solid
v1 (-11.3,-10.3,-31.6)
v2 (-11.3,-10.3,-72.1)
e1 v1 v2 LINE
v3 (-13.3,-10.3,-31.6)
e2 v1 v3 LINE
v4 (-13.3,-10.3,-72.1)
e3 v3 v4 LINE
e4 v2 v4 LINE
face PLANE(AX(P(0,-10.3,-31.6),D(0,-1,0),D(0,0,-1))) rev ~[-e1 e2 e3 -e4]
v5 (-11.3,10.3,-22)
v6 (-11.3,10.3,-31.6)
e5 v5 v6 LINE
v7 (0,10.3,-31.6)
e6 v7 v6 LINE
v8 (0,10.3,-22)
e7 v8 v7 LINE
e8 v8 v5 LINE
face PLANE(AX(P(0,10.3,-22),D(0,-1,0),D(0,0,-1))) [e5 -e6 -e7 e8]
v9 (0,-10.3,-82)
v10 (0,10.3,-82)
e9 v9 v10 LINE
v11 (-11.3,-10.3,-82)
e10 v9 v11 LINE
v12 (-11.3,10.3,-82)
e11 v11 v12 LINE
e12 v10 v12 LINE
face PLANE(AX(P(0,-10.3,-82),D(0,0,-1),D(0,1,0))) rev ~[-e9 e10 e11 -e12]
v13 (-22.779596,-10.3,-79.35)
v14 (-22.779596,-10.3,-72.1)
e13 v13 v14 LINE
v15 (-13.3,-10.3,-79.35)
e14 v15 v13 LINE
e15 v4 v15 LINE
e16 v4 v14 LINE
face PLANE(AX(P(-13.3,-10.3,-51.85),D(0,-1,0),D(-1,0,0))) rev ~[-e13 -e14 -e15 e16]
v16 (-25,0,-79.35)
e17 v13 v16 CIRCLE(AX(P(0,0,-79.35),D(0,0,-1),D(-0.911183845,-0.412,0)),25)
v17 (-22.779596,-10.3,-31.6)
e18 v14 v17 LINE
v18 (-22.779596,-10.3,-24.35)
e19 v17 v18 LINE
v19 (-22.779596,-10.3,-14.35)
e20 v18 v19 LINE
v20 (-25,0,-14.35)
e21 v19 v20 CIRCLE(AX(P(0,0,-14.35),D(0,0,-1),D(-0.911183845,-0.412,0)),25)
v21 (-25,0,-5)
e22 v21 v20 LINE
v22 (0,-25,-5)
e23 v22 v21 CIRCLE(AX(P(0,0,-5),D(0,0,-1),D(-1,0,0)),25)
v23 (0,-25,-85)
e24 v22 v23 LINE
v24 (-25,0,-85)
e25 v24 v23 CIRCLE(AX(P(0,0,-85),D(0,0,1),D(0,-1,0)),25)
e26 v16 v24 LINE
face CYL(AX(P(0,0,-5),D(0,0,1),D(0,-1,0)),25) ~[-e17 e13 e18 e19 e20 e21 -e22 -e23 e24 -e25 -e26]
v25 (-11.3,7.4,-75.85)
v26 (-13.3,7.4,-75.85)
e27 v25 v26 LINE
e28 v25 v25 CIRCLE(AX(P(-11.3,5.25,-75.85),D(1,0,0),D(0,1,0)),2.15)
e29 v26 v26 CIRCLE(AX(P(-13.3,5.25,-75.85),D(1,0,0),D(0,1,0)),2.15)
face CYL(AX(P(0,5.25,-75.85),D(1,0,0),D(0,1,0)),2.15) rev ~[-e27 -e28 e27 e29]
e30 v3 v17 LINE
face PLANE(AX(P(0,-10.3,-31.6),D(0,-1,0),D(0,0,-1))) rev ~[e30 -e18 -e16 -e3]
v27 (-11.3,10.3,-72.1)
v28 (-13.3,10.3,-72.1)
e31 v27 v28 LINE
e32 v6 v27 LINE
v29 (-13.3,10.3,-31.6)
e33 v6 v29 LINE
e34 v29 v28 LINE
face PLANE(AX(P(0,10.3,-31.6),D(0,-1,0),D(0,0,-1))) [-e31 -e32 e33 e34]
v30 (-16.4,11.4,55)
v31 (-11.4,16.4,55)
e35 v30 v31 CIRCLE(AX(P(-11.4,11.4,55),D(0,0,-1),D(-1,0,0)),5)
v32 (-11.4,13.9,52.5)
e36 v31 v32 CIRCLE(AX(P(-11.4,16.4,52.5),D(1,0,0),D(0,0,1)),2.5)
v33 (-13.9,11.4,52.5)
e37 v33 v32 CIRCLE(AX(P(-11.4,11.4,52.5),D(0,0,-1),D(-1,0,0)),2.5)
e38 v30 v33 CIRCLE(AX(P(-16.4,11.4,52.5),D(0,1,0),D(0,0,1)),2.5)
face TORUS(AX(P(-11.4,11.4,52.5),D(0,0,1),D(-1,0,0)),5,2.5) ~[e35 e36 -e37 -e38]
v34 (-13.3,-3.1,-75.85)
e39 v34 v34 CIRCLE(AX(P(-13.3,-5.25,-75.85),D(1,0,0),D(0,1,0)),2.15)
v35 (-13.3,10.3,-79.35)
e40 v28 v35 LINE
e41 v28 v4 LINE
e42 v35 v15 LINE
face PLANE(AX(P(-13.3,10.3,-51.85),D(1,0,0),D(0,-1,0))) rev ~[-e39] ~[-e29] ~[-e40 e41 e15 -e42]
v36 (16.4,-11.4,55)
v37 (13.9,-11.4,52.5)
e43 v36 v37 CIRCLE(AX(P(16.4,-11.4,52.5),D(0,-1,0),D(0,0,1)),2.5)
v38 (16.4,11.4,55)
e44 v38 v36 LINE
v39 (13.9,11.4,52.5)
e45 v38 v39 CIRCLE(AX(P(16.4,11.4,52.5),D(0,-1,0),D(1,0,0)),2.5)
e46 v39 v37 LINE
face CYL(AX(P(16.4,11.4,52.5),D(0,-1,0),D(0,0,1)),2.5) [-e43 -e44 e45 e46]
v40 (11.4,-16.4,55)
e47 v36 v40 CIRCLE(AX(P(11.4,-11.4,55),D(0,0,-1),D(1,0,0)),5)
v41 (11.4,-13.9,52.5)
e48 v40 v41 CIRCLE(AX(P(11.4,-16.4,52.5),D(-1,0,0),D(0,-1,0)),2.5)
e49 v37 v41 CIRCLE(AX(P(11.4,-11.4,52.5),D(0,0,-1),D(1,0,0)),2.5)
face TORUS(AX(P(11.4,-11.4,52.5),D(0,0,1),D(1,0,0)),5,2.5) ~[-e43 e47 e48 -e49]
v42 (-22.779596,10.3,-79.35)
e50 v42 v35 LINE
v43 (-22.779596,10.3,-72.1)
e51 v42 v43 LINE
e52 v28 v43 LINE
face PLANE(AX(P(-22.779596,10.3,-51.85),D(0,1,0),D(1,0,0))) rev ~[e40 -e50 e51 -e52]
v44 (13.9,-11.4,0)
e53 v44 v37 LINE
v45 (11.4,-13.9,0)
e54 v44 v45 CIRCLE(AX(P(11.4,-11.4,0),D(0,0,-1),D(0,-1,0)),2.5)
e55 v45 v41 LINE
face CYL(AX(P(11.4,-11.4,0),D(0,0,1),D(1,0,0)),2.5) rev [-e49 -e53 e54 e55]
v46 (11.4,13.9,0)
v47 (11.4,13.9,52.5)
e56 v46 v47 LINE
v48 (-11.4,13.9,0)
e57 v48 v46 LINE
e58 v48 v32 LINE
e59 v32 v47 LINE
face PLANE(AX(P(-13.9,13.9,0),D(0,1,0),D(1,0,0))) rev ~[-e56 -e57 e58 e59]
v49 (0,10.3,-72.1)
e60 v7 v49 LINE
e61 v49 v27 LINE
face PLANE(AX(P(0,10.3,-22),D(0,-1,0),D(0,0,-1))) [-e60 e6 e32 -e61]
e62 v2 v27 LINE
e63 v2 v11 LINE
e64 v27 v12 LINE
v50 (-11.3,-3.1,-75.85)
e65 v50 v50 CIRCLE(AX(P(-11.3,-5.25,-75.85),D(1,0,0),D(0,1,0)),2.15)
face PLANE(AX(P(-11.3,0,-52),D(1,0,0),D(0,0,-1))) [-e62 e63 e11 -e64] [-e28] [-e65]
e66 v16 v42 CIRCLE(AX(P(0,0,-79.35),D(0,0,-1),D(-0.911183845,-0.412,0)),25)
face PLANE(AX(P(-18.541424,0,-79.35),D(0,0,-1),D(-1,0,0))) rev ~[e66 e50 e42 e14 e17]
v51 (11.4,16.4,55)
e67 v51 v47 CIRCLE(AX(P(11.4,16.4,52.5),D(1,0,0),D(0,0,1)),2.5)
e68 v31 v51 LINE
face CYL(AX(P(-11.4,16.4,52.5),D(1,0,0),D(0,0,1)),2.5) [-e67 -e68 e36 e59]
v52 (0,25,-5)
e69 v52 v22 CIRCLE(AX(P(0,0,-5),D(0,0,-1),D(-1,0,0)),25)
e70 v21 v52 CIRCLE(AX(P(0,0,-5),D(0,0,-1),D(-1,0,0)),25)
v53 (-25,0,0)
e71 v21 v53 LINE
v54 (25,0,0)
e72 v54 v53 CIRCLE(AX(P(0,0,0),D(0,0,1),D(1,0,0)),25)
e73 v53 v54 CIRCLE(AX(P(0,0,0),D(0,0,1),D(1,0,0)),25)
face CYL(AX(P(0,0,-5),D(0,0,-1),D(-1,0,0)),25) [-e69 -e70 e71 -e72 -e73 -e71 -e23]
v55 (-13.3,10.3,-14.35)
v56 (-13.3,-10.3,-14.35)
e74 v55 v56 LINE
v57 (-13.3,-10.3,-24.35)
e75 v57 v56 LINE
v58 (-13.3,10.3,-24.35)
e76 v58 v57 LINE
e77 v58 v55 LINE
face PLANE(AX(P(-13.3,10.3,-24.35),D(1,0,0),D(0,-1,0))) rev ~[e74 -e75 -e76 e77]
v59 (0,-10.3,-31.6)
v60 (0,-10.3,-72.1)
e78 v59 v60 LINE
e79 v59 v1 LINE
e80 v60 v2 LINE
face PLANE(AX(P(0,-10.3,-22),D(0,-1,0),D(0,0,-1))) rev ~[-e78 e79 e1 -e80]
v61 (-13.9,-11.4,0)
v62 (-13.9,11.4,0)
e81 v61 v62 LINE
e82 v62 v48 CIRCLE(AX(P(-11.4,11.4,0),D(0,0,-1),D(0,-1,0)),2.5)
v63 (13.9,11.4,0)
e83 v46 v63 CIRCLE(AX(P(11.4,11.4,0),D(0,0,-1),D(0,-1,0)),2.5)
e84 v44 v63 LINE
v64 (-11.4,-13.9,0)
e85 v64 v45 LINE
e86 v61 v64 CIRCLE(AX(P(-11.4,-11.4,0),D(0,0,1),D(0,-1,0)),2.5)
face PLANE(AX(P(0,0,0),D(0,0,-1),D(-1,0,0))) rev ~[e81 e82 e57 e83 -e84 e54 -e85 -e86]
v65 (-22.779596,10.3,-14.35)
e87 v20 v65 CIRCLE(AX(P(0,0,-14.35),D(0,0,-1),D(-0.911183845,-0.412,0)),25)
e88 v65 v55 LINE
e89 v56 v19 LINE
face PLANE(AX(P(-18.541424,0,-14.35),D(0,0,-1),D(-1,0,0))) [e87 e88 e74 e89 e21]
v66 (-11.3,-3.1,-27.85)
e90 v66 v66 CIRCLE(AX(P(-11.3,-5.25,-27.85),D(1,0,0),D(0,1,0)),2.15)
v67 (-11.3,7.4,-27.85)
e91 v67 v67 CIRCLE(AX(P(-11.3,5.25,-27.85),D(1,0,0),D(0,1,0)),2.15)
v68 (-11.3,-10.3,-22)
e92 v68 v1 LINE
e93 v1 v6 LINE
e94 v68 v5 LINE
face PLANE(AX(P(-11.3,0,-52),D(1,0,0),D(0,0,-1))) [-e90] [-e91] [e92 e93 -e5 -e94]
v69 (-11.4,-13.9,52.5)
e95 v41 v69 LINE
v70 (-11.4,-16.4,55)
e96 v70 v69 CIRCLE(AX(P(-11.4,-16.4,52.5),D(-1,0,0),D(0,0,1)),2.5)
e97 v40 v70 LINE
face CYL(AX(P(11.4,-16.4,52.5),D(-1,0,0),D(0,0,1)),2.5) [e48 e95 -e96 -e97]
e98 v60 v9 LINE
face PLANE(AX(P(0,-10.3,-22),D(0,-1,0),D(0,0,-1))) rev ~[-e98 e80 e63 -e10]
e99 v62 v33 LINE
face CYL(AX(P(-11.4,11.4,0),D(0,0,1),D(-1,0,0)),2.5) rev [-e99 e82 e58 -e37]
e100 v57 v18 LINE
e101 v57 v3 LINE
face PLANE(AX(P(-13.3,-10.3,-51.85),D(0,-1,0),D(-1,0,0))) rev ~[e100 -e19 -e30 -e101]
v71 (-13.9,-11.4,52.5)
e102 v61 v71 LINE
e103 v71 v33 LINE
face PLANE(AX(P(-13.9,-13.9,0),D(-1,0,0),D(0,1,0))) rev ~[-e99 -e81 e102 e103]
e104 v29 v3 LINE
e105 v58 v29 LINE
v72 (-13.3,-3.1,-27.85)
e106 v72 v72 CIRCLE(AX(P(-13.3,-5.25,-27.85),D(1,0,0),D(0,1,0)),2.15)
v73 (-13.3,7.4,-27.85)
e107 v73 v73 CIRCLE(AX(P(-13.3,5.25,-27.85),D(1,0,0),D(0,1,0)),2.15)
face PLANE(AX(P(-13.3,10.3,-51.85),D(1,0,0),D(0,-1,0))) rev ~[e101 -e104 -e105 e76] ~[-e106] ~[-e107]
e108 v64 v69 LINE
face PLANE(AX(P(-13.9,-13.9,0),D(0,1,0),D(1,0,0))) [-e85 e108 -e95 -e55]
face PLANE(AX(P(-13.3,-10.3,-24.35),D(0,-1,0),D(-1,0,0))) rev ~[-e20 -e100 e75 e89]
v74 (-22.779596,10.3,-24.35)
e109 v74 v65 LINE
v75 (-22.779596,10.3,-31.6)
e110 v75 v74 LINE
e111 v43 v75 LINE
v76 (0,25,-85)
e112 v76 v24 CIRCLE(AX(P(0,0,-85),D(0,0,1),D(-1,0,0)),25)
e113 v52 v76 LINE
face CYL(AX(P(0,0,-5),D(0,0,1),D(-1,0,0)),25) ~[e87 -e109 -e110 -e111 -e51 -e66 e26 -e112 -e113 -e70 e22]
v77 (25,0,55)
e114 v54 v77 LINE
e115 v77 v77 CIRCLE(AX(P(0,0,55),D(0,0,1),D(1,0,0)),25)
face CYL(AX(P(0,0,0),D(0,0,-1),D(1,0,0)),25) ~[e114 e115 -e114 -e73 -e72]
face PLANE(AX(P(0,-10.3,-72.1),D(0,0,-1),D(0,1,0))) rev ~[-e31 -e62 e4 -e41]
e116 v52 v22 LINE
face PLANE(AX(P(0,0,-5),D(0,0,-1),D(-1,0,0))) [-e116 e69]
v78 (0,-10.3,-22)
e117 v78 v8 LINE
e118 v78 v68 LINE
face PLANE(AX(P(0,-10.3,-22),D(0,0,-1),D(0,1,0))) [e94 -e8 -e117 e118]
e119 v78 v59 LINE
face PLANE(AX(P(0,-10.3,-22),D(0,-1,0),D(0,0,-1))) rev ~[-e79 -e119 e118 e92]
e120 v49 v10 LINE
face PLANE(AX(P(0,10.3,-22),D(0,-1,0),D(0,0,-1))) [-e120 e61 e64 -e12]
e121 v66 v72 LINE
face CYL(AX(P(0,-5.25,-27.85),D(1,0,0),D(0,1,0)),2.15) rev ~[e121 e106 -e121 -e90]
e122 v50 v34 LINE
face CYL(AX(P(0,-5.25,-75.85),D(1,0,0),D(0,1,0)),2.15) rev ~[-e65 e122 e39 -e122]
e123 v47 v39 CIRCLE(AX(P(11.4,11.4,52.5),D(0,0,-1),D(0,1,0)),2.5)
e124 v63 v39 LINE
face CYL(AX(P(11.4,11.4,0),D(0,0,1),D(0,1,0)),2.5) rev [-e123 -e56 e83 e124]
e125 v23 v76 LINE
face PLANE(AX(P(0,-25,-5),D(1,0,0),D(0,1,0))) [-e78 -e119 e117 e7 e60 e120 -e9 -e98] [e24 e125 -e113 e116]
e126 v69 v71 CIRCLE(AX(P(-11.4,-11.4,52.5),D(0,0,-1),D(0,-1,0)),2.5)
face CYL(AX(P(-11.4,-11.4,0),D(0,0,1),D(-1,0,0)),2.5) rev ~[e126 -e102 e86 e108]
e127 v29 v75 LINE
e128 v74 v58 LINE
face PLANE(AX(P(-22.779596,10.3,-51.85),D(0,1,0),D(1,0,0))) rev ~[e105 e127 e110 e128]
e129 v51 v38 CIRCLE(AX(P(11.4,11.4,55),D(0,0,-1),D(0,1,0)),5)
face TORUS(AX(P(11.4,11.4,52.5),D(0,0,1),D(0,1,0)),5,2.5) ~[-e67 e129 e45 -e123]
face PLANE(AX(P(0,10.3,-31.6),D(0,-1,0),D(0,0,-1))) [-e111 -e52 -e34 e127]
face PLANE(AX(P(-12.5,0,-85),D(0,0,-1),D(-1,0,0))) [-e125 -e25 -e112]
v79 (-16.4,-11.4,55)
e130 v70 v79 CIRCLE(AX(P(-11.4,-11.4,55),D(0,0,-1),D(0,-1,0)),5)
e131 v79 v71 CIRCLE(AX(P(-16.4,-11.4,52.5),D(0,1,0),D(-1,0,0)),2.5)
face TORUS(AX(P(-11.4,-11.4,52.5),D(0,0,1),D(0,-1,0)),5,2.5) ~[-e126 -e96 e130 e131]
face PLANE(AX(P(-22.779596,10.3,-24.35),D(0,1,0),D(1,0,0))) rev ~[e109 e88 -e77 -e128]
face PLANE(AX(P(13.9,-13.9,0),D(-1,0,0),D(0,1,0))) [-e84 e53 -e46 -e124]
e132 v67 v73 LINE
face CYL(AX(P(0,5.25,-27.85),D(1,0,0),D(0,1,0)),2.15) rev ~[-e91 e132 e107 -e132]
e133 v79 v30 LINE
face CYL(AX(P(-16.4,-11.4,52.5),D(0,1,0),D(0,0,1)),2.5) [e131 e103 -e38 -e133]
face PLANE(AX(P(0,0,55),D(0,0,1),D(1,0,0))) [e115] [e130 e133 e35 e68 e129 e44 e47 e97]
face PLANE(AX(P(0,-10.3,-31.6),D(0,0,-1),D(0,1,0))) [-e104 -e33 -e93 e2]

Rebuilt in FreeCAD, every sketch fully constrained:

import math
import FreeCAD as App
import Part
import Sketcher

V = App.Vector


def edges_at(feature, points):
    """Names of the edges that pass closest to the given points."""
    edges = feature.Shape.Edges
    near = lambda p: min(range(len(edges)), key=lambda i: edges[i].distToShape(Part.Vertex(*p))[0])
    return sorted({f"Edge{near(p) + 1}" for p in points})


def add_polygon(sketch, points):
    """Adds a closed chain of lines whose ends are joined by coincident constraints."""
    first, n = sketch.GeometryCount, len(points)
    for a, b in zip(points, points[1:] + points[:1]):
        sketch.addGeometry(Part.LineSegment(App.Vector(*a, 0), App.Vector(*b, 0)), False)
    for i in range(n):
        sketch.addConstraint(Sketcher.Constraint("Coincident", first + i, 2, first + (i + 1) % n, 1))

doc = App.newDocument("Part")
body = doc.addObject("PartDesign::Body", "Body")

sketch1 = body.newObject("Sketcher::SketchObject", "Sketch")
sketch1.AttachmentSupport = (doc.getObject("XY_Plane"), [""])
sketch1.MapMode = "FlatFace"
sketch1.addGeometry(Part.Circle(V(0, 0, 0), V(0, 0, 1), 25), False)
add_polygon(sketch1, [(14, -14), (-14, -14), (-14, 14), (14, 14)])
sketch1.addConstraint([
    Sketcher.Constraint("Horizontal", 1),
    Sketcher.Constraint("Vertical", 2),
    Sketcher.Constraint("Horizontal", 3),
    Sketcher.Constraint("Vertical", 4),
    Sketcher.Constraint("Coincident", 0, 3, -1, 1),
    Sketcher.Constraint("Symmetric", 1, 2, 3, 2, -1, 1),
    Sketcher.Constraint("Equal", 3, 2),
    Sketcher.Constraint("Diameter", 0, 50.0),
    Sketcher.Constraint("DistanceX", 1, 2, 1, 1, 27.8),
])
pad1 = body.newObject("PartDesign::Pad", "Pad")
pad1.Profile = sketch1
pad1.Length = 55

sketch2 = body.newObject("Sketcher::SketchObject", "Sketch001")
sketch2.AttachmentSupport = (doc.getObject("XY_Plane"), [""])
sketch2.MapMode = "FlatFace"
sketch2.AttachmentOffset = App.Placement(V(0, 0, -5), App.Rotation())
sketch2.addGeometry(Part.Circle(V(0, 0, 0), V(0, 0, 1), 25), False)
sketch2.addConstraint([
    Sketcher.Constraint("Coincident", 0, 3, -1, 1),
    Sketcher.Constraint("Diameter", 0, 50.0),
])
pad2 = body.newObject("PartDesign::Pad", "Pad001")
pad2.Profile = sketch2
pad2.Length = 5

sketch3 = body.newObject("Sketcher::SketchObject", "Sketch002")
sketch3.AttachmentSupport = (doc.getObject("XY_Plane"), [""])
sketch3.MapMode = "FlatFace"
sketch3.AttachmentOffset = App.Placement(V(0, 0, -5), App.Rotation())
add_polygon(sketch3, [(0, 25), (0, -25), (-25, -25), (-25, 25)])
sketch3.addConstraint([
    Sketcher.Constraint("Vertical", 0),
    Sketcher.Constraint("Horizontal", 1),
    Sketcher.Constraint("Vertical", 2),
    Sketcher.Constraint("Horizontal", 3),
    Sketcher.Constraint("Symmetric", 0, 2, 3, 2, -1, 1),
    Sketcher.Constraint("DistanceX", 1, 2, 1, 1, 25.0),
    Sketcher.Constraint("DistanceY", 0, 2, 0, 1, 50.0),
])
pad3 = body.newObject("PartDesign::Pad", "Pad002")
pad3.Profile = sketch3
pad3.Length = 80
pad3.Reversed = True
doc.recompute()

fillet = body.newObject("PartDesign::Fillet", "Fillet")
fillet.Base = (pad3, edges_at(pad3, [
    (-13.9, 13.9, 27.5),
    (-13.9, -13.9, 27.5),
    (13.9, -13.9, 27.5),
    (13.9, 13.9, 27.5),
]))
fillet.Radius = 2.5
doc.recompute()

fillet2 = body.newObject("PartDesign::Fillet", "Fillet001")
fillet2.Base = (fillet, edges_at(fillet, [
    (0, 13.9, 55),
    (-13.9, 0, 55),
    (0, -13.9, 55),
    (13.9, 0, 55),
    (-13.168, 13.168, 55),
    (-13.168, -13.168, 55),
    (13.168, -13.168, 55),
    (13.168, 13.168, 55),
]))
fillet2.Radius = 2.5

sketch4 = body.newObject("Sketcher::SketchObject", "Sketch003")
sketch4.AttachmentSupport = (doc.getObject("YZ_Plane"), [""])
sketch4.MapMode = "FlatFace"
add_polygon(sketch4, [(10, -22), (-10, -22), (-10, -82), (10, -82)])
sketch4.addConstraint([
    Sketcher.Constraint("Horizontal", 0),
    Sketcher.Constraint("Vertical", 1),
    Sketcher.Constraint("Horizontal", 2),
    Sketcher.Constraint("Vertical", 3),
    Sketcher.Constraint("DistanceY", 1, 2, 1, 1, 60.0),
    Sketcher.Constraint("DistanceX", 0, 2, 0, 1, 20.6),
    Sketcher.Constraint("DistanceY", 0, 2, -1, 1, 22.0),
    Sketcher.Constraint("DistanceX", 0, 2, -1, 1, 10.3),
])
pocket1 = body.newObject("PartDesign::Pocket", "Pocket")
pocket1.Profile = sketch4
pocket1.Length = 11.3

sketch5 = body.newObject("Sketcher::SketchObject", "Sketch004")
sketch5.AttachmentSupport = (doc.getObject("YZ_Plane"), [""])
sketch5.MapMode = "FlatFace"
add_polygon(sketch5, [(10, -32), (-10, -32), (-10, -72), (10, -72)])
sketch5.addConstraint([
    Sketcher.Constraint("Horizontal", 0),
    Sketcher.Constraint("Vertical", 1),
    Sketcher.Constraint("Horizontal", 2),
    Sketcher.Constraint("Vertical", 3),
    Sketcher.Constraint("DistanceX", 0, 2, 0, 1, 20.6),
    Sketcher.Constraint("DistanceY", 1, 2, 1, 1, 40.5),
    Sketcher.Constraint("DistanceX", 0, 2, -1, 1, 10.3),
    Sketcher.Constraint("DistanceY", 0, 2, -1, 1, 31.6),
])
pocket2 = body.newObject("PartDesign::Pocket", "Pocket001")
pocket2.Profile = sketch5
pocket2.Type = "ThroughAll"

sketch6 = body.newObject("Sketcher::SketchObject", "Sketch005")
sketch6.AttachmentSupport = (doc.getObject("XY_Plane"), [""])
sketch6.MapMode = "FlatFace"
sketch6.AttachmentOffset = App.Placement(V(0, 0, -5), App.Rotation())
sketch6.addGeometry([
    Part.LineSegment(V(-25, -25, 0), V(0, -25, 0)),
    Part.ArcOfCircle(Part.Circle(V(0, 0, 0), V(0, 0, 1), 25), math.radians(180), math.radians(270)),
    Part.LineSegment(V(-25, 0, 0), V(-25, -25, 0)),
    Part.LineSegment(V(-25, 25, 0), V(-25, 0, 0)),
    Part.ArcOfCircle(Part.Circle(V(0, 0, 0), V(0, 0, 1), 25), math.radians(90), math.radians(180)),
    Part.LineSegment(V(0, 25, 0), V(-25, 25, 0)),
], False)
sketch6.addConstraint([
    Sketcher.Constraint("Tangent", 0, 2, 1, 2),
    Sketcher.Constraint("Tangent", 1, 1, 2, 1),
    Sketcher.Constraint("Coincident", 2, 2, 0, 1),
    Sketcher.Constraint("Tangent", 3, 2, 4, 2),
    Sketcher.Constraint("Tangent", 4, 1, 5, 1),
    Sketcher.Constraint("Coincident", 5, 2, 3, 1),
    Sketcher.Constraint("Horizontal", 0),
    Sketcher.Constraint("Vertical", 2),
    Sketcher.Constraint("Vertical", 3),
    Sketcher.Constraint("Horizontal", 5),
    Sketcher.Constraint("Coincident", 1, 3, -1, 1),
    Sketcher.Constraint("Coincident", 4, 3, -1, 1),
    Sketcher.Constraint("Equal", 1, 4),
    Sketcher.Constraint("Radius", 1, 25.0),
])
pocket3 = body.newObject("PartDesign::Pocket", "Pocket002")
pocket3.Profile = sketch6
pocket3.Type = "ThroughAll"

sketch7 = body.newObject("Sketcher::SketchObject", "Sketch006")
sketch7.AttachmentSupport = (doc.getObject("YZ_Plane"), [""])
sketch7.MapMode = "FlatFace"
sketch7.addGeometry([
    Part.Circle(V(-5.2, -27.9, 0), V(0, 0, 1), 2.1),
    Part.Circle(V(5.2, -75.8, 0), V(0, 0, 1), 2.1),
    Part.Circle(V(-5.2, -75.8, 0), V(0, 0, 1), 2.1),
    Part.Circle(V(5.2, -27.9, 0), V(0, 0, 1), 2.1),
], False)
sketch7.addConstraint([
    Sketcher.Constraint("Equal", 0, 1),
    Sketcher.Constraint("Equal", 1, 2),
    Sketcher.Constraint("Equal", 2, 3),
    Sketcher.Constraint("Symmetric", 1, 3, 2, 3, -2),
    Sketcher.Constraint("Symmetric", 0, 3, 3, 3, -2),
    Sketcher.Constraint("Vertical", 0, 3, 2, 3),
    Sketcher.Constraint("Diameter", 0, 4.3),
    Sketcher.Constraint("DistanceY", 1, 3, 0, 3, 48.0),
    Sketcher.Constraint("DistanceX", 0, 3, 1, 3, 10.5),
    Sketcher.Constraint("DistanceY", 0, 3, -1, 1, 27.85),
])
pocket4 = body.newObject("PartDesign::Pocket", "Pocket003")
pocket4.Profile = sketch7
pocket4.Type = "ThroughAll"

sketch8 = body.newObject("Sketcher::SketchObject", "Sketch007")
sketch8.AttachmentSupport = (doc.getObject("XY_Plane"), [""])
sketch8.MapMode = "FlatFace"
sketch8.AttachmentOffset = App.Placement(V(0, 0, -51.85), App.Rotation())
sketch8.addGeometry([
    Part.LineSegment(V(-23, 10, 0), V(-13, 10, 0)),
    Part.LineSegment(V(-13, 10, 0), V(-13, -10, 0)),
    Part.LineSegment(V(-13, -10, 0), V(-23, -10, 0)),
    Part.ArcOfCircle(Part.Circle(V(0, 0, 0), V(0, 0, 1), 25), math.radians(156), math.radians(204)),
], False)
sketch8.addConstraint([
    Sketcher.Constraint("Coincident", 0, 2, 1, 1),
    Sketcher.Constraint("Coincident", 1, 2, 2, 1),
    Sketcher.Constraint("Coincident", 2, 2, 3, 2),
    Sketcher.Constraint("Coincident", 3, 1, 0, 1),
    Sketcher.Constraint("Horizontal", 0),
    Sketcher.Constraint("Vertical", 1),
    Sketcher.Constraint("Horizontal", 2),
    Sketcher.Constraint("Coincident", 3, 3, -1, 1),
    Sketcher.Constraint("Vertical", 2, 2, 3, 1),
    Sketcher.Constraint("Radius", 3, 25.0),
    Sketcher.Constraint("DistanceY", 1, 2, 1, 1, 20.6),
    Sketcher.Constraint("DistanceX", 0, 2, -1, 1, 13.3),
])
pocket5 = body.newObject("PartDesign::Pocket", "Pocket004")
pocket5.Profile = sketch8
pocket5.Length = 55
pocket5.Midplane = True

sketch9 = body.newObject("Sketcher::SketchObject", "Sketch008")
sketch9.AttachmentSupport = (doc.getObject("XY_Plane"), [""])
sketch9.MapMode = "FlatFace"
sketch9.AttachmentOffset = App.Placement(V(0, 0, -24.35), App.Rotation())
sketch9.addGeometry([
    Part.LineSegment(V(-13, -10, 0), V(-23, -10, 0)),
    Part.ArcOfCircle(Part.Circle(V(0, 0, 0), V(0, 0, 1), 25), math.radians(156), math.radians(204)),
    Part.LineSegment(V(-23, 10, 0), V(-13, 10, 0)),
    Part.LineSegment(V(-13, 10, 0), V(-13, -10, 0)),
], False)
sketch9.addConstraint([
    Sketcher.Constraint("Coincident", 0, 2, 1, 2),
    Sketcher.Constraint("Coincident", 1, 1, 2, 1),
    Sketcher.Constraint("Coincident", 2, 2, 3, 1),
    Sketcher.Constraint("Coincident", 3, 2, 0, 1),
    Sketcher.Constraint("Horizontal", 0),
    Sketcher.Constraint("Horizontal", 2),
    Sketcher.Constraint("Vertical", 3),
    Sketcher.Constraint("Coincident", 1, 3, -1, 1),
    Sketcher.Constraint("Vertical", 0, 2, 1, 1),
    Sketcher.Constraint("Radius", 1, 25.0),
    Sketcher.Constraint("DistanceY", 3, 2, 3, 1, 20.6),
    Sketcher.Constraint("DistanceX", 2, 2, -1, 1, 13.3),
])
pocket6 = body.newObject("PartDesign::Pocket", "Pocket005")
pocket6.Profile = sketch9
pocket6.Length = 10
pocket6.Reversed = True

doc.recompute()
